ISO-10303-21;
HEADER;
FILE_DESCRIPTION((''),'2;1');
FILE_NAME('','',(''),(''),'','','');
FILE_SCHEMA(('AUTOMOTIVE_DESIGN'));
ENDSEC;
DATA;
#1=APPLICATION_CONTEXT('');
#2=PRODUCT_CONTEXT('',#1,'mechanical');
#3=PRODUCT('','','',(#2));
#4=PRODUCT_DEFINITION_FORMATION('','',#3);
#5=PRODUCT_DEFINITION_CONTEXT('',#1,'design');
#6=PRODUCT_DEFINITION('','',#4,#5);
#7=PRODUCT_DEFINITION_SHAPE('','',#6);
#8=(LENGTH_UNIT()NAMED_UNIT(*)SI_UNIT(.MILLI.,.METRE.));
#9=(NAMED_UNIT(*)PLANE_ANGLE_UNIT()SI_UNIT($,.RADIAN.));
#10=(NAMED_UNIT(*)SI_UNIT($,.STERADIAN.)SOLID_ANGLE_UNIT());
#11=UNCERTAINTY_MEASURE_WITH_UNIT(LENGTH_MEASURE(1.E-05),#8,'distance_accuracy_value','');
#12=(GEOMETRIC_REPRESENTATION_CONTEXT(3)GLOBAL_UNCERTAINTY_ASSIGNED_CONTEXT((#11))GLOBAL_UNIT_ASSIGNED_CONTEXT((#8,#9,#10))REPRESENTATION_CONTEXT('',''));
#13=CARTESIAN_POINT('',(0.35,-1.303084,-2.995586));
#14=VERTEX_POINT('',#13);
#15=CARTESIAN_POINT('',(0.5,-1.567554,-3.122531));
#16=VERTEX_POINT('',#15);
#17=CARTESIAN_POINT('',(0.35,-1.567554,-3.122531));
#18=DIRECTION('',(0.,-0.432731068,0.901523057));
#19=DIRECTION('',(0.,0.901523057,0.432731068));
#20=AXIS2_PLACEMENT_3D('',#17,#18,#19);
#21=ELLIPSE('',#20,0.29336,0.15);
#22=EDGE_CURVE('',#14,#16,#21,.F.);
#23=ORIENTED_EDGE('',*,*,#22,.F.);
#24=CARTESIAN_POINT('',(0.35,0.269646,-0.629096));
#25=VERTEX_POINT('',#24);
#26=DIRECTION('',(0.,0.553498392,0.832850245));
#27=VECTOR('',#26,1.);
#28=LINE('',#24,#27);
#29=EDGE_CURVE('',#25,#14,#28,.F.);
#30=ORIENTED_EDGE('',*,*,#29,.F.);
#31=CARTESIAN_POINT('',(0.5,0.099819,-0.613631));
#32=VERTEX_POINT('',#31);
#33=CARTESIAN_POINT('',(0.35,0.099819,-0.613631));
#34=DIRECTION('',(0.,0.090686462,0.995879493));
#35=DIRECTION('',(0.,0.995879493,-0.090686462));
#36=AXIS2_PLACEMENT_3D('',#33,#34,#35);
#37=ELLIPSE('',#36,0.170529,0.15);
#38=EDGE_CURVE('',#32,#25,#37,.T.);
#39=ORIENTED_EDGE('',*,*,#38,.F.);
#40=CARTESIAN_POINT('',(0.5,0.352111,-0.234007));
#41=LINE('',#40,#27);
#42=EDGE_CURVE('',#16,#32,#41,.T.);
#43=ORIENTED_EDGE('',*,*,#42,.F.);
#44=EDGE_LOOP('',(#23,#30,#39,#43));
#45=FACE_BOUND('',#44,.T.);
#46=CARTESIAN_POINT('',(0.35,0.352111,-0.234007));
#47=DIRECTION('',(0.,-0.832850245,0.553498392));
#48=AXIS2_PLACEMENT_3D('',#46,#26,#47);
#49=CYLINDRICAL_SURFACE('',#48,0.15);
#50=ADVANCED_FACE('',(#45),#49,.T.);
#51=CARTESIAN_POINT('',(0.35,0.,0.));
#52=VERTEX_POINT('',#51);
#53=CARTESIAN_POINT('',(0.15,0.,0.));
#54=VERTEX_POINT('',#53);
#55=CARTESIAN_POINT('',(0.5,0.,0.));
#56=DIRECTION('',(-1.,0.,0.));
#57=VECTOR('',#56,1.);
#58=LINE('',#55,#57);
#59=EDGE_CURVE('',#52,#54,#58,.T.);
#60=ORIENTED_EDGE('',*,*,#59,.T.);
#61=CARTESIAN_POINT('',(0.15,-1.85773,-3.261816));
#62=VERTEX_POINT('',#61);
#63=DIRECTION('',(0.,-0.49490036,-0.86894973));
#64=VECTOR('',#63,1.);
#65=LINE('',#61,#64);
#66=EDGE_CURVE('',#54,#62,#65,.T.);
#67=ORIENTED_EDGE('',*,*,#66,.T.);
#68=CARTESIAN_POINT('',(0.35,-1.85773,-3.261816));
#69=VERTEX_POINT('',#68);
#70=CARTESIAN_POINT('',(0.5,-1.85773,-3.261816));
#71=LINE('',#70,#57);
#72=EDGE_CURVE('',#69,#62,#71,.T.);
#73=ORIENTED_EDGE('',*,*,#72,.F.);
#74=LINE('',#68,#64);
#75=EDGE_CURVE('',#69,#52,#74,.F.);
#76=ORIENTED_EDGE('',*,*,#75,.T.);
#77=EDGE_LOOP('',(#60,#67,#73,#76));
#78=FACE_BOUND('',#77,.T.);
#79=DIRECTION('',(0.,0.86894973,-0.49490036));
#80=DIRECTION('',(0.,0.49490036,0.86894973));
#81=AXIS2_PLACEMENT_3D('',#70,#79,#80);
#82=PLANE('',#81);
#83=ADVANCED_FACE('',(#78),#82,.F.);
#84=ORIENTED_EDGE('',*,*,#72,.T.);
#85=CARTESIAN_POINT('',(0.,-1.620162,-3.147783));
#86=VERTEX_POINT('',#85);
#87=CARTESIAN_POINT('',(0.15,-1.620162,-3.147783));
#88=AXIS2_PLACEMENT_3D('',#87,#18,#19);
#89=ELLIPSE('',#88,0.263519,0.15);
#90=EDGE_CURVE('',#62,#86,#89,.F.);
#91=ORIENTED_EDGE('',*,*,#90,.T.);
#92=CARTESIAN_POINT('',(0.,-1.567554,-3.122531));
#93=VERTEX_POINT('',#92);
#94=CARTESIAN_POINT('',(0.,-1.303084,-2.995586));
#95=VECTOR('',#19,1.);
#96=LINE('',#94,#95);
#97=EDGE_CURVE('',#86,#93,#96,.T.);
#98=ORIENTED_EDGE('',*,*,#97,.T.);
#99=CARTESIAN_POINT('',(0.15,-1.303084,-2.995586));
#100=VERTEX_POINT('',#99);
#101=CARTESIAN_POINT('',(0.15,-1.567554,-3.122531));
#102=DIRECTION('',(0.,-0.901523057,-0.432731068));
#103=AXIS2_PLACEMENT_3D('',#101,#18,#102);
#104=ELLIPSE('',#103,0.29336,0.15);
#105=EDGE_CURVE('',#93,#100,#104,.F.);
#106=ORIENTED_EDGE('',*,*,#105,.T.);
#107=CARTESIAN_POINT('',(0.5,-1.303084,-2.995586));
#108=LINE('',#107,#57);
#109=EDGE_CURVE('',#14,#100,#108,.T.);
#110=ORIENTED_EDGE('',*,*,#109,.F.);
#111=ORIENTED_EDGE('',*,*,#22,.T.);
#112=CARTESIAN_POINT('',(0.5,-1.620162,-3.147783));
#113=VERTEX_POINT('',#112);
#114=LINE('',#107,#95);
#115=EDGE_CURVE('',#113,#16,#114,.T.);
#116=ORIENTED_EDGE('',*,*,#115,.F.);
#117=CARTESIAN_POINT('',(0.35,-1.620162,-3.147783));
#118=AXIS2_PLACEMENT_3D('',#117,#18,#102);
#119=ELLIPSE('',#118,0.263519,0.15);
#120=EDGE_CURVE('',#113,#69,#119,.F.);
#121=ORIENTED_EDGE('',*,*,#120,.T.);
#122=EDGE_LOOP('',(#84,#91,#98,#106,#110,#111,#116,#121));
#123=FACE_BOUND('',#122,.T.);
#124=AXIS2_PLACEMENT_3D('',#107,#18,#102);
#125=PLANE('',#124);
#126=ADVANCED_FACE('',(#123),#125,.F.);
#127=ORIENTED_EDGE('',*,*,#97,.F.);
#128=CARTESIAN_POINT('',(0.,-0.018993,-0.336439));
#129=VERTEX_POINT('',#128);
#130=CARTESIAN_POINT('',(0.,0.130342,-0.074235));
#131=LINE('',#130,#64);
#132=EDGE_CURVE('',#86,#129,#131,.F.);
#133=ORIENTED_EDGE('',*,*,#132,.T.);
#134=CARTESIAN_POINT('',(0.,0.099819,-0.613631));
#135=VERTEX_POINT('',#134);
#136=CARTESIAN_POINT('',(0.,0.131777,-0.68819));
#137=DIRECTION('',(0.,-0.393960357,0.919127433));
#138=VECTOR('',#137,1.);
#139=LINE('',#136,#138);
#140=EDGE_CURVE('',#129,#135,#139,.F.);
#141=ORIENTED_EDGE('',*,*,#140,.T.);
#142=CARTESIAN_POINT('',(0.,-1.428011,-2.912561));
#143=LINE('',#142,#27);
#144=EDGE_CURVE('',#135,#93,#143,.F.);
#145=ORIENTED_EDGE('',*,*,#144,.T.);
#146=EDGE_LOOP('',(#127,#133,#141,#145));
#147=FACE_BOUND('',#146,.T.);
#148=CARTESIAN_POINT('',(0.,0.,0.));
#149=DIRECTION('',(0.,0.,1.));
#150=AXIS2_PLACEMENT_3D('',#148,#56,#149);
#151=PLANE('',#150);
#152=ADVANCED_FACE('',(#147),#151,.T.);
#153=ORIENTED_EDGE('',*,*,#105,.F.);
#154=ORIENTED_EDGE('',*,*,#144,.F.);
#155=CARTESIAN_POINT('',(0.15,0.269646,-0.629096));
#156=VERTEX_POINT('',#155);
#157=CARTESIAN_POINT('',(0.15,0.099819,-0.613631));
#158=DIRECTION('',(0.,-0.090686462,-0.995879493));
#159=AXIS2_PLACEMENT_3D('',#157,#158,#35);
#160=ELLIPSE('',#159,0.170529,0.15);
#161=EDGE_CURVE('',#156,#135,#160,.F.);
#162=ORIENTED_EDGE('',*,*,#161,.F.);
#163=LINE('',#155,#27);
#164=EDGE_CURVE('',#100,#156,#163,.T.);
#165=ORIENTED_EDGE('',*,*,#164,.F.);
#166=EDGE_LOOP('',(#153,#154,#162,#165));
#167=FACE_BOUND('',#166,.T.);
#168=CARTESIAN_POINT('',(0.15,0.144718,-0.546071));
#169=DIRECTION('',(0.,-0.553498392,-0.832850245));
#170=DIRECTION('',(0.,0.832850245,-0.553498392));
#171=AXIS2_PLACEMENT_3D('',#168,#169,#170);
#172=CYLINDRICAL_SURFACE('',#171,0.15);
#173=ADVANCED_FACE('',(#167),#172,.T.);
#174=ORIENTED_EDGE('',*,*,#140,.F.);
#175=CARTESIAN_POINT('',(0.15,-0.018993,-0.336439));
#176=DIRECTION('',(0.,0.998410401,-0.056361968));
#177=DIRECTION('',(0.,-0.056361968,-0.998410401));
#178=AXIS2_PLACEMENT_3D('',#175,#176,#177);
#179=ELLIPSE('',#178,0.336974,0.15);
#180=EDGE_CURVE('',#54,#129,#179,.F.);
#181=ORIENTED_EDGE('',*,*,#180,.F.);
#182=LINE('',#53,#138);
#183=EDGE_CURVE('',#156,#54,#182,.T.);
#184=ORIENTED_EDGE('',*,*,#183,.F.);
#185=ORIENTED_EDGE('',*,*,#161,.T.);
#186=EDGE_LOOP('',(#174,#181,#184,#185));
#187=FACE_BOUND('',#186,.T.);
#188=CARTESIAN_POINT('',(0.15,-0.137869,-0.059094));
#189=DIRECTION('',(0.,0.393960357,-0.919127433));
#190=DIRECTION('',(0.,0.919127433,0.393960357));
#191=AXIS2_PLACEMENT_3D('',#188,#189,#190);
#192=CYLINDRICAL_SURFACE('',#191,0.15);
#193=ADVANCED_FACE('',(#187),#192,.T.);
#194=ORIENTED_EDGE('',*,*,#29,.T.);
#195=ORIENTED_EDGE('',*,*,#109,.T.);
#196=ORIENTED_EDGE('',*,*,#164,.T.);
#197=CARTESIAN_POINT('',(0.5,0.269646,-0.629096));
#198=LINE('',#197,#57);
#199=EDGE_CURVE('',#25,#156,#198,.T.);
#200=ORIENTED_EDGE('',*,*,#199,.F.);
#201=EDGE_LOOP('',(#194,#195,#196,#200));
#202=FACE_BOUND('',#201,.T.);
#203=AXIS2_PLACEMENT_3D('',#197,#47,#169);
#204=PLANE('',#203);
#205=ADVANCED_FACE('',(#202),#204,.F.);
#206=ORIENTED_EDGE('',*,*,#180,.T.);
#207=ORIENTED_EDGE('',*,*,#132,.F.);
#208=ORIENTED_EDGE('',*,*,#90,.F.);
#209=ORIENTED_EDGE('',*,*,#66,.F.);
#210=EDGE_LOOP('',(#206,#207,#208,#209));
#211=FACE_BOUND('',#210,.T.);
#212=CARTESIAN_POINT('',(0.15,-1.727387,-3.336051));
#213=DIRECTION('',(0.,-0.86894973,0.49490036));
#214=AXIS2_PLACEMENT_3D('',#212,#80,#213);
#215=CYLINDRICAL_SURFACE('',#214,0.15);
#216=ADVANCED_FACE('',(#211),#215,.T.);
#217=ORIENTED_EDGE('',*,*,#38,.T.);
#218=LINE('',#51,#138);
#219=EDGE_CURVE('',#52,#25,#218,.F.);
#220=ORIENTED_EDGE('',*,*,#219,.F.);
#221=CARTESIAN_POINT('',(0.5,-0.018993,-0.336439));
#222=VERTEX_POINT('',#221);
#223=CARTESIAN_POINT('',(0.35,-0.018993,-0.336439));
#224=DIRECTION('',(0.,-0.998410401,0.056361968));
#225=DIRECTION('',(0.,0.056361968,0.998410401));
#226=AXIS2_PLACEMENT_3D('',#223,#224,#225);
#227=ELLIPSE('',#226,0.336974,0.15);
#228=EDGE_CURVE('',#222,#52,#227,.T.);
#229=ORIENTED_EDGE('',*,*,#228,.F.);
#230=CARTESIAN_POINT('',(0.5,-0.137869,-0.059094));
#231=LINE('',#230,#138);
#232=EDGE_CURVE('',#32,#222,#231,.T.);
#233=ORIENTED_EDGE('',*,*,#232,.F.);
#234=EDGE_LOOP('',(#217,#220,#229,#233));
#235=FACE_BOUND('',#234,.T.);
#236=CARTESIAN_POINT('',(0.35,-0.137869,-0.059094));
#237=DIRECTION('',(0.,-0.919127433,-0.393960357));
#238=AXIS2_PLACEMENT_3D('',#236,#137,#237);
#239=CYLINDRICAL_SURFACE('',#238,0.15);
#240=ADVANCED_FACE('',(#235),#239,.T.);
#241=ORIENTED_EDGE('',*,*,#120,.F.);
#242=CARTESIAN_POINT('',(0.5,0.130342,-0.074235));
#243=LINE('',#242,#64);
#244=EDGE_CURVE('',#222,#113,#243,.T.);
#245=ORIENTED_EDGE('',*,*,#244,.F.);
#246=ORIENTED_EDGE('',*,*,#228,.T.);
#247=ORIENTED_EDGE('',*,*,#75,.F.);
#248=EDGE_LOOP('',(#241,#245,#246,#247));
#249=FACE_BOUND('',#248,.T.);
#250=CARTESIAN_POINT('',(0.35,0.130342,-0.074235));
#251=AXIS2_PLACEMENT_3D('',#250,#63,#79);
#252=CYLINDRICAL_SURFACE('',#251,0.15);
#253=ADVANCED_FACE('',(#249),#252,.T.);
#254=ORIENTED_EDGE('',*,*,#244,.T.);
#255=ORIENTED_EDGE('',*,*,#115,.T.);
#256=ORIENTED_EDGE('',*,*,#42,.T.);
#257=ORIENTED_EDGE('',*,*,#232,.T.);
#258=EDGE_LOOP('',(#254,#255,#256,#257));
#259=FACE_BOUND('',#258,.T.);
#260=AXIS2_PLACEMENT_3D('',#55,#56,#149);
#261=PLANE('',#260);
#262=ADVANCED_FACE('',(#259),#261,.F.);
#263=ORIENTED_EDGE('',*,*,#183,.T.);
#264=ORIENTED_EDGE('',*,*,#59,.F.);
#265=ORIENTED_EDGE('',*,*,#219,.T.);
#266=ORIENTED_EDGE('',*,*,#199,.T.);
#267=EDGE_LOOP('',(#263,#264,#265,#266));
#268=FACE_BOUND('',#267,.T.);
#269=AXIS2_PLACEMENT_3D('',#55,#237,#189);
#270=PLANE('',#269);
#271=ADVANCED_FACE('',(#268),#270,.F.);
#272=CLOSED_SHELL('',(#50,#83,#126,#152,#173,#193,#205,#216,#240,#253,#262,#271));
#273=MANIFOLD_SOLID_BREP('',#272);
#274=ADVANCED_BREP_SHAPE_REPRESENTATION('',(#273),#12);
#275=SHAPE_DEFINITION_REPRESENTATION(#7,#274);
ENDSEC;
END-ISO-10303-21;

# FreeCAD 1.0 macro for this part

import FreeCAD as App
import Part
import Sketcher

V = App.Vector


def edges_at(feature, points):
    """Names of the edges that pass closest to the given points."""
    edges = feature.Shape.Edges
    near = lambda p: min(range(len(edges)), key=lambda i: edges[i].distToShape(Part.Vertex(*p))[0])
    return sorted({f"Edge{near(p) + 1}" for p in points})


def add_polygon(sketch, points):
    """Adds a closed chain of lines whose ends are joined by coincident constraints."""
    first, n = sketch.GeometryCount, len(points)
    for a, b in zip(points, points[1:] + points[:1]):
        sketch.addGeometry(Part.LineSegment(App.Vector(*a, 0), App.Vector(*b, 0)), False)
    for i in range(n):
        sketch.addConstraint(Sketcher.Constraint("Coincident", first + i, 2, first + (i + 1) % n, 1))

doc = App.newDocument("Part")
params = doc.addObject("Spreadsheet::Sheet", "Params")
for row, (alias, value) in enumerate([
    ("pad1_length", "0.5 mm"),
    ("fillet_radius", "0.15 mm"),
], start=1):
    params.set(f"A{row}", alias)
    params.set(f"B{row}", "=" + value)
    params.setAlias(f"B{row}", alias)

body = doc.addObject("PartDesign::Body", "Body")

sketch1 = doc.addObject("Sketcher::SketchObject", "Sketch")
body.addObject(sketch1)
sketch1.AttachmentSupport = (doc.YZ_Plane, [""])
sketch1.MapMode = "FlatFace"
add_polygon(sketch1, [(0.3, -0.6), (0, 0), (-1.9, -3.3), (-1.3, -3)])
sketch1.addConstraint(Sketcher.Constraint("Coincident", 0, 2, -1, 1))
sketch1.addConstraint(Sketcher.Constraint("Distance", 0, 0.684449))
sketch1.addConstraint(Sketcher.Constraint("DistanceX", 1, 2, -1, 1, 1.85773))
sketch1.addConstraint(Sketcher.Constraint("DistanceY", 1, 2, 2, 2, 0.26623))
sketch1.addConstraint(Sketcher.Constraint("DistanceX", 2, 2, 3, 2, 1.57273))
sketch1.addConstraint(Sketcher.Constraint("DistanceY", 2, 2, 3, 2, 2.36649))
sketch1.addConstraint(Sketcher.Constraint("Distance", 1, 3.753745))
pad1 = doc.addObject("PartDesign::Pad", "Pad")
body.addObject(pad1)
pad1.Profile = sketch1
pad1.setExpression("Length", "Params.pad1_length")
doc.recompute()

fillet = doc.addObject("PartDesign::Fillet", "Fillet")
body.addObject(fillet)
fillet.Base = (pad1, edges_at(pad1, [
    (0.5, -0.517, -1.812),
    (0.5, 0.135, -0.315),
    (0.5, -0.929, -1.631),
    (0, 0.135, -0.315),
    (0, -0.517, -1.812),
    (0, -0.929, -1.631),
]))
fillet.setExpression("Radius", "Params.fillet_radius")

doc.recompute()
